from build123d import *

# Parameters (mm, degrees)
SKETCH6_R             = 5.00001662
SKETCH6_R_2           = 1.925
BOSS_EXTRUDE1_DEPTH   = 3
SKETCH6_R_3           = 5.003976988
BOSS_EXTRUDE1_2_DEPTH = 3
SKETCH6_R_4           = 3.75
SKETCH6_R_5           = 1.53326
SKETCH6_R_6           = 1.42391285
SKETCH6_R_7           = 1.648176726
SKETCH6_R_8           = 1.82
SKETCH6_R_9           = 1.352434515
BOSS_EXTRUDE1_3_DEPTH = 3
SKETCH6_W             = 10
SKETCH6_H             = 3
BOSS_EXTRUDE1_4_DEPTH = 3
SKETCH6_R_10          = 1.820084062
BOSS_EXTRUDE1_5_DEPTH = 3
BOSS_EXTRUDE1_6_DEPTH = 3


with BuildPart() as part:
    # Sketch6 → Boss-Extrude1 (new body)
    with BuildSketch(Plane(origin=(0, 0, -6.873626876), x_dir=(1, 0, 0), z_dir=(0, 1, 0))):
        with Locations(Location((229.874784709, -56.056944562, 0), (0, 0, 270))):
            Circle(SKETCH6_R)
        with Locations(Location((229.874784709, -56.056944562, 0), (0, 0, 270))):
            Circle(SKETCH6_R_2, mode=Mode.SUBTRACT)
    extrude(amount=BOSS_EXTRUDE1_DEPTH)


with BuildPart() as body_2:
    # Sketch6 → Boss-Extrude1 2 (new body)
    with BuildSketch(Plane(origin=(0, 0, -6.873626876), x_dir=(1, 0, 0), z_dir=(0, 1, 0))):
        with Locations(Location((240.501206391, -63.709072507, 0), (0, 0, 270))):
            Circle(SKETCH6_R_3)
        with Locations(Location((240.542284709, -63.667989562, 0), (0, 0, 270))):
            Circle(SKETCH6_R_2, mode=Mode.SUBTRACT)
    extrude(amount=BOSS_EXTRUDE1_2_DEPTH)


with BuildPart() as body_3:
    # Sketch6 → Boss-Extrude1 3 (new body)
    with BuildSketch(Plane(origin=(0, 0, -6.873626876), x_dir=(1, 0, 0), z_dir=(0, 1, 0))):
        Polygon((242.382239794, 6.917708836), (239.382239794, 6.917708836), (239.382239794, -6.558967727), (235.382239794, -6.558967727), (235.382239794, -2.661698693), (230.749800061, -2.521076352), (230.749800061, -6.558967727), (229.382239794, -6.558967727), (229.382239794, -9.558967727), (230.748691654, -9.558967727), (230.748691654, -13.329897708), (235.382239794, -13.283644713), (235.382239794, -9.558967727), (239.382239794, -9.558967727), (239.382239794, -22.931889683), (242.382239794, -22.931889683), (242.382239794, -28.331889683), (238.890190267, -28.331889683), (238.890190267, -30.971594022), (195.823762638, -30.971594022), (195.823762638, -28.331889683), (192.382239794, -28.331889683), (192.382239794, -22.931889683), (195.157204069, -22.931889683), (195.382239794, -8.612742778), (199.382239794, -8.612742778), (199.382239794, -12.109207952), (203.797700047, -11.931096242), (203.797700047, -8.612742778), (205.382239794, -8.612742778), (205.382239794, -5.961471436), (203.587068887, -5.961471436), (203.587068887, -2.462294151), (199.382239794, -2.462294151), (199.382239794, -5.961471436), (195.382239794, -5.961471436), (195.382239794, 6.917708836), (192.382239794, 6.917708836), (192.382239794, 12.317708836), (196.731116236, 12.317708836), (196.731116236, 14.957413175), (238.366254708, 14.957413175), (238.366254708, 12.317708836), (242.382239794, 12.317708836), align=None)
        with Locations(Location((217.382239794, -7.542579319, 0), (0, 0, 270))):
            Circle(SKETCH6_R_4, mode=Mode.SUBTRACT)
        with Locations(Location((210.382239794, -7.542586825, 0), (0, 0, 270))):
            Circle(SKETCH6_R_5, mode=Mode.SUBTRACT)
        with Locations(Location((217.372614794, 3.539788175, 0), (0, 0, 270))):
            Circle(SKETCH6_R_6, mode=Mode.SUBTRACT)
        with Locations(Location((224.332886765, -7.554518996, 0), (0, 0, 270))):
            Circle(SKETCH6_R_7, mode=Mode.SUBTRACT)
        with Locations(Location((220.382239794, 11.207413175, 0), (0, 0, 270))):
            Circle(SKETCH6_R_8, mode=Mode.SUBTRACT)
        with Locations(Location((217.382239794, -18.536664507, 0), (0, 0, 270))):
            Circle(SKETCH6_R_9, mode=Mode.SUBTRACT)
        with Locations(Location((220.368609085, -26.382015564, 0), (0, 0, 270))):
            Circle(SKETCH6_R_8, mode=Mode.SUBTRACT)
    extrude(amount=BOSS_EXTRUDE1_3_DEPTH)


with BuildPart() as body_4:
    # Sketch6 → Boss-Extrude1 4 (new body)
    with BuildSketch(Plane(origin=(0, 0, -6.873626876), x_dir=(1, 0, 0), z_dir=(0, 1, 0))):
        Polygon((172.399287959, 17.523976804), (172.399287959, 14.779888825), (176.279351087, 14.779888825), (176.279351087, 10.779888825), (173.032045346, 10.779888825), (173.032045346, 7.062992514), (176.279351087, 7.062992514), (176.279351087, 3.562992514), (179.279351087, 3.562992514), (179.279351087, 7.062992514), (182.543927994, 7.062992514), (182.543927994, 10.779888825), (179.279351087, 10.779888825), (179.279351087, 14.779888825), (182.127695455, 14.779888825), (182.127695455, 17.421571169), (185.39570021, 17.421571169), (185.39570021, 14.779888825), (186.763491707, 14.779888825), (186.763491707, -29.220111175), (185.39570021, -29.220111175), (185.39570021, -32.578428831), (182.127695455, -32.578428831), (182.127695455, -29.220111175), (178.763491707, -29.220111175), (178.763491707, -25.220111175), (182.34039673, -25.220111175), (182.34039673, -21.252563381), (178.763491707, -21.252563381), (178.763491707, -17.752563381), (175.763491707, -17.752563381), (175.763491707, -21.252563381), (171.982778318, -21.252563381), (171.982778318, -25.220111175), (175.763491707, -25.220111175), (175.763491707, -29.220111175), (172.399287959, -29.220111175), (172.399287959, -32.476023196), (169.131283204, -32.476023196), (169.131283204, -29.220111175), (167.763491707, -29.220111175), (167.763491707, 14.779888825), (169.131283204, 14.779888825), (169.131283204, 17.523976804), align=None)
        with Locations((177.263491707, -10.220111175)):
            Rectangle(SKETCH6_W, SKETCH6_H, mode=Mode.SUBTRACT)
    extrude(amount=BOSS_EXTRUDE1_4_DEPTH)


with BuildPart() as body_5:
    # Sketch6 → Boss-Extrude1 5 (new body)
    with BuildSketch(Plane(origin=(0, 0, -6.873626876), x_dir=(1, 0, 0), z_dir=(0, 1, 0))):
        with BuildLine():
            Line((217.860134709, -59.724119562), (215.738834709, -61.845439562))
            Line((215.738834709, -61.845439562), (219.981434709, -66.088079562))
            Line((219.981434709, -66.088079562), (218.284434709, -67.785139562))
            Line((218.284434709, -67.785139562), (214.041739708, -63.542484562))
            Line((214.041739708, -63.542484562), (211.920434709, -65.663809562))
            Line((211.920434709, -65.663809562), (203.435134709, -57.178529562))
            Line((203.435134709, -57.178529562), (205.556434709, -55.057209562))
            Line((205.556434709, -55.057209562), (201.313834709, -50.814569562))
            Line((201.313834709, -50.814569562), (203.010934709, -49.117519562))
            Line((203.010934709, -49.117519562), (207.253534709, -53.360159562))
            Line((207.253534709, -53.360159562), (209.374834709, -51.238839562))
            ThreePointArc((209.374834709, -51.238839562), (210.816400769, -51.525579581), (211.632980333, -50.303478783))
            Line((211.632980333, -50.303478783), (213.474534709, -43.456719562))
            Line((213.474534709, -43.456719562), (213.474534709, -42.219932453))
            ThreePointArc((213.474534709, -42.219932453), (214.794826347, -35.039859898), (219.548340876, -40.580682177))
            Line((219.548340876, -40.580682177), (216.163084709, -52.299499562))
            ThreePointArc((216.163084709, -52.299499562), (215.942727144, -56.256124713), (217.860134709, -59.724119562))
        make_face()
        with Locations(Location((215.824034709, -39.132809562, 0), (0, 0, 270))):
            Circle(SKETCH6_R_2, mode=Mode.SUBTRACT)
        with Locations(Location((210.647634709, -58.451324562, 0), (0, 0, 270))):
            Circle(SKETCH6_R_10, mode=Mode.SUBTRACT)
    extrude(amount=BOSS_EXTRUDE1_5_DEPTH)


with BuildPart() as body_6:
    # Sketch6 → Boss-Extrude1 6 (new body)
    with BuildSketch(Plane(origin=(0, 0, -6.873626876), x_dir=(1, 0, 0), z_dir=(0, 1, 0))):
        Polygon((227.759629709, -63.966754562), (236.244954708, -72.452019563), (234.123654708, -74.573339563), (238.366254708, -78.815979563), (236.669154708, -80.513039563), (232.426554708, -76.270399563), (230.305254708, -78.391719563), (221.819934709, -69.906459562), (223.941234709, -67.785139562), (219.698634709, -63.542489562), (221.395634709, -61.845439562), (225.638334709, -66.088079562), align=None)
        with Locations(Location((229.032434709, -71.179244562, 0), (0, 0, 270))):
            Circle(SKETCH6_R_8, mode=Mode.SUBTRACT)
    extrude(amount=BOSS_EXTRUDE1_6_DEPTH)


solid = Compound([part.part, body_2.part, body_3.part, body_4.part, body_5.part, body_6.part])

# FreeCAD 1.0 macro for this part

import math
import FreeCAD as App
import Part
import Sketcher

V = App.Vector
Q = App.Units.Quantity


def add_polygon(sketch, points):
    """Adds a closed chain of lines whose ends are joined by coincident constraints."""
    first, n = sketch.GeometryCount, len(points)
    for a, b in zip(points, points[1:] + points[:1]):
        sketch.addGeometry(Part.LineSegment(App.Vector(*a, 0), App.Vector(*b, 0)), False)
    for i in range(n):
        sketch.addConstraint(Sketcher.Constraint("Coincident", first + i, 2, first + (i + 1) % n, 1))

doc = App.newDocument("Part")
body = doc.addObject("PartDesign::Body", "Body")

# Sketch on XZ plane
sketch1 = body.newObject("Sketcher::SketchObject", "Sketch")
sketch1.AttachmentSupport = (doc.getObject("XZ_Plane"), [""])
sketch1.MapMode = "FlatFace"
sketch1.addGeometry([
    Part.Circle(V(229.9, 49.2, 0), V(0, 0, 1), 5),
    Part.Circle(V(229.9, 49.2, 0), V(0, 0, 1), 1.9),
], False)
sketch1.addConstraint([
    Sketcher.Constraint("Coincident", 1, 3, 0, 3),
    Sketcher.Constraint("Diameter", 1, Q("3.85 mm")),
    Sketcher.Constraint("Diameter", 0, Q("10.000033 mm")),
    Sketcher.Constraint("DistanceX", -1, 1, 0, 3, Q("229.874785 mm")),
    Sketcher.Constraint("DistanceY", -1, 1, 0, 3, Q("49.183318 mm")),
])
pad1 = body.newObject("PartDesign::Pad", "Pad")
pad1.Profile = sketch1
pad1.Length = 3
pad1.Reversed = True
body2 = doc.addObject("PartDesign::Body", "Body001")

# Sketch on XZ plane
sketch2 = body2.newObject("Sketcher::SketchObject", "Sketch001")
sketch2.AttachmentSupport = (doc.getObject("XZ_Plane001"), [""])
sketch2.MapMode = "FlatFace"
sketch2.addGeometry([
    Part.Circle(V(240.5, 56.8, 0), V(0, 0, 1), 5),
    Part.Circle(V(240.5, 56.8, 0), V(0, 0, 1), 1.9),
], False)
sketch2.addConstraint([
    Sketcher.Constraint("Diameter", 1, Q("3.85 mm")),
    Sketcher.Constraint("Diameter", 0, Q("10.007954 mm")),
    Sketcher.Constraint("DistanceX", 0, 3, 1, 3, Q("0.041078 mm")),
    Sketcher.Constraint("DistanceX", -1, 1, 0, 3, Q("240.501206 mm")),
    Sketcher.Constraint("DistanceY", -1, 1, 0, 3, Q("56.835446 mm")),
    Sketcher.Constraint("DistanceY", -1, 1, 1, 3, Q("56.794363 mm")),
])
pad2 = body2.newObject("PartDesign::Pad", "Pad001")
pad2.Profile = sketch2
pad2.Length = 3
pad2.Reversed = True
body3 = doc.addObject("PartDesign::Body", "Body002")

# Sketch on XZ plane
sketch3 = body3.newObject("Sketcher::SketchObject", "Sketch002")
sketch3.AttachmentSupport = (doc.getObject("XZ_Plane002"), [""])
sketch3.MapMode = "FlatFace"
add_polygon(sketch3, [(239.4, -13.8), (242.4, -13.8), (242.4, -19.2), (238.4, -19.2), (238.4, -21.8), (196.7, -21.8), (196.7, -19.2), (192.4, -19.2), (192.4, -13.8), (195.4, -13.8), (195.4, -0.9), (199.4, -0.9), (199.4, -4.4), (203.6, -4.4), (203.6, -0.9), (205.4, -0.9), (205.4, 1.7), (203.8, 1.7), (203.8, 5.1), (199.4, 5.2), (199.4, 1.7), (195.4, 1.7), (195.2, 16.1), (192.4, 16.1), (192.4, 21.5), (195.8, 21.5), (195.8, 24.1), (238.9, 24.1), (238.9, 21.5), (242.4, 21.5), (242.4, 16.1), (239.4, 16.1), (239.4, 2.7), (235.4, 2.7), (235.4, 6.4), (230.7, 6.5), (230.7, 2.7), (229.4, 2.7), (229.4, -0.3), (230.7, -0.3), (230.7, -4.4), (235.4, -4.2), (235.4, -0.3), (239.4, -0.3)])  # lines 0-43
sketch3.addGeometry(Part.Circle(V(220.4, 19.5, 0), V(0, 0, 1), 1.8), False)  # 44
sketch3.addGeometry(Part.Circle(V(217.4, 11.7, 0), V(0, 0, 1), 1.4), False)  # 45
sketch3.addGeometry(Part.Circle(V(224.3, 0.7, 0), V(0, 0, 1), 1.6), False)  # 46
sketch3.addGeometry(Part.Circle(V(220.4, -18.1, 0), V(0, 0, 1), 1.8), False)  # 47
sketch3.addGeometry(Part.Circle(V(217.4, 0.7, 0), V(0, 0, 1), 3.8), False)  # 48
sketch3.addGeometry(Part.Circle(V(210.4, 0.7, 0), V(0, 0, 1), 1.5), False)  # 49
sketch3.addGeometry(Part.Circle(V(217.4, -10.4, 0), V(0, 0, 1), 1.4), False)  # 50
sketch3.addConstraint([
    Sketcher.Constraint("Horizontal", 0),
    Sketcher.Constraint("Vertical", 1),
    Sketcher.Constraint("Horizontal", 2),
    Sketcher.Constraint("Vertical", 3),
    Sketcher.Constraint("Horizontal", 4),
    Sketcher.Constraint("Vertical", 5),
    Sketcher.Constraint("Horizontal", 6),
    Sketcher.Constraint("Vertical", 7),
    Sketcher.Constraint("Horizontal", 8),
    Sketcher.Constraint("Vertical", 9),
    Sketcher.Constraint("Horizontal", 10),
    Sketcher.Constraint("Vertical", 11),
    Sketcher.Constraint("Horizontal", 12),
    Sketcher.Constraint("Vertical", 13),
    Sketcher.Constraint("Horizontal", 14),
    Sketcher.Constraint("Vertical", 15),
    Sketcher.Constraint("Horizontal", 16),
    Sketcher.Constraint("Vertical", 17),
    Sketcher.Constraint("Vertical", 19),
    Sketcher.Constraint("Horizontal", 20),
    Sketcher.Constraint("Horizontal", 22),
    Sketcher.Constraint("Vertical", 23),
    Sketcher.Constraint("Horizontal", 24),
    Sketcher.Constraint("Vertical", 25),
    Sketcher.Constraint("Horizontal", 26),
    Sketcher.Constraint("Vertical", 27),
    Sketcher.Constraint("Horizontal", 28),
    Sketcher.Constraint("Vertical", 29),
    Sketcher.Constraint("Horizontal", 30),
    Sketcher.Constraint("Vertical", 31),
    Sketcher.Constraint("Horizontal", 32),
    Sketcher.Constraint("Vertical", 33),
    Sketcher.Constraint("Vertical", 35),
    Sketcher.Constraint("Horizontal", 36),
    Sketcher.Constraint("Vertical", 37),
    Sketcher.Constraint("Horizontal", 38),
    Sketcher.Constraint("Vertical", 39),
    Sketcher.Constraint("Vertical", 41),
    Sketcher.Constraint("Horizontal", 42),
    Sketcher.Constraint("Vertical", 43),
    Sketcher.Constraint("Equal", 44, 47),
    Sketcher.Constraint("Horizontal", 2, 2, 5, 2),
    Sketcher.Constraint("Horizontal", 0, 2, 7, 2),
    Sketcher.Constraint("Horizontal", 10, 2, 13, 2),
    Sketcher.Constraint("Horizontal", 16, 2, 19, 2),
    Sketcher.Constraint("Horizontal", 24, 2, 27, 2),
    Sketcher.Constraint("Horizontal", 22, 2, 29, 2),
    Sketcher.Constraint("Horizontal", 32, 2, 35, 2),
    Sketcher.Constraint("Horizontal", 38, 2, 41, 2),
    Sketcher.Constraint("Vertical", 45, 3, 48, 3),
    Sketcher.Constraint("Vertical", 11, 2, 18, 2),
    Sketcher.Constraint("Vertical", 9, 2, 20, 2),
    Sketcher.Constraint("Vertical", 7, 2, 22, 2),
    Sketcher.Constraint("Vertical", 1, 2, 28, 2),
    Sketcher.Constraint("Vertical", 33, 2, 40, 2),
    Sketcher.Constraint("Vertical", 31, 2, 42, 2),
    Sketcher.Constraint("Equal", 0, 8),
    Sketcher.Constraint("Equal", 20, 32),
    Sketcher.Constraint("Equal", 7, 23),
    Sketcher.Constraint("Equal", 5, 25),
    Sketcher.Constraint("Equal", 30, 37),
    Sketcher.Constraint("Diameter", 48, Q("7.5 mm")),
    Sketcher.Constraint("Diameter", 44, Q("3.64 mm")),
    Sketcher.Constraint("DistanceX", 0, 1, 0, 2, Q("3 mm")),
    Sketcher.Constraint("DistanceX", 10, 1, 10, 2, Q("4 mm")),
    Sketcher.Constraint("DistanceY", 1, 2, 1, 1, Q("5.4 mm")),
    Sketcher.Constraint("DistanceX", 45, 3, 47, 3, Q("3 mm")),
    Sketcher.Constraint("DistanceX", 49, 3, 48, 3, Q("7 mm")),
    Sketcher.Constraint("DistanceX", 47, 3, 0, 2, Q("22 mm")),
    Sketcher.Constraint("DistanceX", 6, 2, 49, 3, Q("18 mm")),
    Sketcher.Constraint("DistanceX", 14, 2, 49, 3, Q("5 mm")),
    Sketcher.Constraint("DistanceX", 36, 2, 32, 2, Q("6 mm")),
    Sketcher.Constraint("DistanceY", 4, 2, 49, 3, Q("22.5 mm")),
    Sketcher.Constraint("Diameter", 45, Q("2.704869 mm")),
    Sketcher.Constraint("Diameter", 49, Q("3.06652 mm")),
    Sketcher.Constraint("DistanceY", 47, 3, 49, 3, Q("18.75 mm")),
    Sketcher.Constraint("Diameter", 46, Q("3.296353 mm")),
    Sketcher.Constraint("Diameter", 50, Q("2.847826 mm")),
    Sketcher.Constraint("DistanceX", 4, 2, 4, 1, Q("41.635138 mm")),
    Sketcher.Constraint("DistanceX", 12, 1, 12, 2, Q("4.204829 mm")),
    Sketcher.Constraint("DistanceX", 16, 2, 16, 1, Q("1.58454 mm")),
    Sketcher.Constraint("DistanceX", 28, 1, 28, 2, Q("3.49205 mm")),
    Sketcher.Constraint("DistanceX", 36, 2, 36, 1, Q("1.366452 mm")),
    Sketcher.Constraint("DistanceX", 38, 1, 38, 2, Q("1.36756 mm")),
    Sketcher.Constraint("DistanceY", 9, 1, 9, 2, Q("12.87918 mm")),
    Sketcher.Constraint("DistanceY", 15, 1, 15, 2, Q("2.651271 mm")),
    Sketcher.Constraint("DistanceY", 31, 2, 31, 1, Q("13.372922 mm")),
    Sketcher.Constraint("DistanceY", 35, 2, 35, 1, Q("3.77093 mm")),
    Sketcher.Constraint("DistanceY", 39, 2, 39, 1, Q("4.037891 mm")),
    Sketcher.Constraint("DistanceY", 41, 1, 41, 2, Q("3.897269 mm")),
    Sketcher.Constraint("DistanceX", -1, 1, 16, 2, Q("203.7977 mm")),
    Sketcher.Constraint("DistanceX", 4, 2, 50, 3, Q("20.641499 mm")),
    Sketcher.Constraint("Distance", 18, Q("4.419051 mm")),
    Sketcher.Constraint("Distance", 34, Q("4.633779 mm")),
    Sketcher.Constraint("DistanceX", 2, 2, 2, 1, Q("4.015985 mm")),
    Sketcher.Constraint("DistanceX", 22, 2, 22, 1, Q("2.774964 mm")),
    Sketcher.Constraint("DistanceX", 24, 1, 24, 2, Q("3.441523 mm")),
    Sketcher.Constraint("DistanceY", 3, 2, 3, 1, Q("2.639704 mm")),
    Sketcher.Constraint("DistanceY", 11, 2, 11, 1, Q("3.499177 mm")),
    Sketcher.Constraint("DistanceY", 17, 1, 17, 2, Q("3.318353 mm")),
    Sketcher.Constraint("DistanceY", 43, 2, 43, 1, Q("13.476677 mm")),
    Sketcher.Constraint("DistanceX", -1, 1, 44, 3, Q("220.368609 mm")),
    Sketcher.Constraint("DistanceY", -1, 1, 44, 3, Q("19.508389 mm")),
    Sketcher.Constraint("DistanceY", 47, 3, -1, 1, Q("18.08104 mm")),
    Sketcher.Constraint("DistanceY", 45, 3, 44, 3, Q("7.845351 mm")),
    Sketcher.Constraint("DistanceY", 48, 3, 46, 3, Q("0.01194 mm")),
    Sketcher.Constraint("DistanceX", 50, 3, 46, 3, Q("6.960272 mm")),
    Sketcher.Constraint("DistanceY", 0, 2, 50, 3, Q("3.377921 mm")),
    Sketcher.Constraint("DistanceY", 0, 2, 48, 3, Q("14.460288 mm")),
])
pad3 = body3.newObject("PartDesign::Pad", "Pad002")
pad3.Profile = sketch3
pad3.Length = 3
pad3.Reversed = True
body4 = doc.addObject("PartDesign::Body", "Body003")

# Sketch on XZ plane
sketch4 = body4.newObject("Sketcher::SketchObject", "Sketch003")
sketch4.AttachmentSupport = (doc.getObject("XZ_Plane003"), [""])
sketch4.MapMode = "FlatFace"
add_polygon(sketch4, [(172.4, -21.7), (172.4, -24.4), (169.1, -24.4), (169.1, -21.7), (167.8, -21.7), (167.8, 22.3), (169.1, 22.3), (169.1, 25.6), (172.4, 25.6), (172.4, 22.3), (175.8, 22.3), (175.8, 18.3), (172, 18.3), (172, 14.4), (175.8, 14.4), (175.8, 10.9), (178.8, 10.9), (178.8, 14.4), (182.3, 14.4), (182.3, 18.3), (178.8, 18.3), (178.8, 22.3), (182.1, 22.3), (182.1, 25.7), (185.4, 25.7), (185.4, 22.3), (186.8, 22.3), (186.8, -21.7), (185.4, -21.7), (185.4, -24.3), (182.1, -24.3), (182.1, -21.7), (179.3, -21.7), (179.3, -17.7), (182.5, -17.7), (182.5, -13.9), (179.3, -13.9), (179.3, -10.4), (176.3, -10.4), (176.3, -13.9), (173, -13.9), (173, -17.7), (176.3, -17.7), (176.3, -21.7)])  # lines 0-43
add_polygon(sketch4, [(172.3, 4.8), (172.3, 1.8), (182.3, 1.8), (182.3, 4.8)])  # lines 44-47
sketch4.addConstraint([
    Sketcher.Constraint("Vertical", 0),
    Sketcher.Constraint("Horizontal", 1),
    Sketcher.Constraint("Vertical", 2),
    Sketcher.Constraint("Horizontal", 3),
    Sketcher.Constraint("Vertical", 4),
    Sketcher.Constraint("Horizontal", 5),
    Sketcher.Constraint("Vertical", 6),
    Sketcher.Constraint("Horizontal", 7),
    Sketcher.Constraint("Vertical", 8),
    Sketcher.Constraint("Horizontal", 9),
    Sketcher.Constraint("Vertical", 10),
    Sketcher.Constraint("Horizontal", 11),
    Sketcher.Constraint("Vertical", 12),
    Sketcher.Constraint("Horizontal", 13),
    Sketcher.Constraint("Vertical", 14),
    Sketcher.Constraint("Horizontal", 15),
    Sketcher.Constraint("Vertical", 16),
    Sketcher.Constraint("Horizontal", 17),
    Sketcher.Constraint("Vertical", 18),
    Sketcher.Constraint("Horizontal", 19),
    Sketcher.Constraint("Vertical", 20),
    Sketcher.Constraint("Horizontal", 21),
    Sketcher.Constraint("Vertical", 22),
    Sketcher.Constraint("Horizontal", 23),
    Sketcher.Constraint("Vertical", 24),
    Sketcher.Constraint("Horizontal", 25),
    Sketcher.Constraint("Vertical", 26),
    Sketcher.Constraint("Horizontal", 27),
    Sketcher.Constraint("Vertical", 28),
    Sketcher.Constraint("Horizontal", 29),
    Sketcher.Constraint("Vertical", 30),
    Sketcher.Constraint("Horizontal", 31),
    Sketcher.Constraint("Vertical", 32),
    Sketcher.Constraint("Horizontal", 33),
    Sketcher.Constraint("Vertical", 34),
    Sketcher.Constraint("Horizontal", 35),
    Sketcher.Constraint("Vertical", 36),
    Sketcher.Constraint("Horizontal", 37),
    Sketcher.Constraint("Vertical", 38),
    Sketcher.Constraint("Horizontal", 39),
    Sketcher.Constraint("Vertical", 40),
    Sketcher.Constraint("Horizontal", 41),
    Sketcher.Constraint("Vertical", 42),
    Sketcher.Constraint("Horizontal", 43),
    Sketcher.Constraint("Vertical", 44),
    Sketcher.Constraint("Horizontal", 45),
    Sketcher.Constraint("Vertical", 46),
    Sketcher.Constraint("Horizontal", 47),
    Sketcher.Constraint("Horizontal", 5, 2, 8, 2),
    Sketcher.Constraint("Horizontal", 13, 2, 16, 2),
    Sketcher.Constraint("Horizontal", 11, 2, 18, 2),
    Sketcher.Constraint("Horizontal", 9, 2, 20, 2),
    Sketcher.Constraint("Horizontal", 21, 2, 24, 2),
    Sketcher.Constraint("Horizontal", 3, 2, 26, 2),
    Sketcher.Constraint("Horizontal", 27, 2, 30, 2),
    Sketcher.Constraint("Horizontal", 35, 2, 38, 2),
    Sketcher.Constraint("Horizontal", 33, 2, 40, 2),
    Sketcher.Constraint("Horizontal", 31, 2, 42, 2),
    Sketcher.Constraint("Vertical", 2, 2, 5, 2),
    Sketcher.Constraint("Vertical", 0, 2, 7, 2),
    Sketcher.Constraint("Vertical", 10, 2, 13, 2),
    Sketcher.Constraint("Vertical", 16, 2, 19, 2),
    Sketcher.Constraint("Vertical", 24, 2, 27, 2),
    Sketcher.Constraint("Vertical", 22, 2, 29, 2),
    Sketcher.Constraint("Vertical", 32, 2, 35, 2),
    Sketcher.Constraint("Vertical", 38, 2, 41, 2),
    Sketcher.Constraint("Equal", 9, 21),
    Sketcher.Constraint("Equal", 7, 23),
    Sketcher.Constraint("Equal", 5, 25),
    Sketcher.Constraint("Equal", 15, 37),
    Sketcher.Constraint("Equal", 20, 32),
    Sketcher.Constraint("Equal", 16, 36),
    Sketcher.Constraint("Equal", 37, 44),
    Sketcher.Constraint("DistanceX", 15, 1, 15, 2, Q("3 mm")),
    Sketcher.Constraint("DistanceX", 45, 1, 45, 2, Q("10 mm")),
    Sketcher.Constraint("DistanceY", 4, 1, 4, 2, Q("44 mm")),
    Sketcher.Constraint("DistanceY", 10, 2, 10, 1, Q("4 mm")),
    Sketcher.Constraint("DistanceY", 14, 2, 14, 1, Q("3.5 mm")),
    Sketcher.Constraint("DistanceY", 1, 2, 6, 2, Q("50 mm")),
    Sketcher.Constraint("DistanceX", 4, 2, 9, 2, Q("8 mm")),
    Sketcher.Constraint("DistanceX", 44, 2, 14, 2, Q("3.5 mm")),
    Sketcher.Constraint("DistanceX", 3, 2, 3, 1, Q("1.367791 mm")),
    Sketcher.Constraint("DistanceY", -1, 1, 22, 2, Q("25.704802 mm")),
    Sketcher.Constraint("DistanceX", -1, 1, 23, 2, Q("185.3957 mm")),
    Sketcher.Constraint("DistanceY", 28, 2, -1, 1, Q("24.295198 mm")),
    Sketcher.Constraint("DistanceX", 21, 2, 18, 2, Q("0.212701 mm")),
    Sketcher.Constraint("DistanceX", 1, 2, 1, 1, Q("3.268005 mm")),
    Sketcher.Constraint("DistanceX", 11, 2, 11, 1, Q("3.780713 mm")),
    Sketcher.Constraint("DistanceX", 31, 2, 31, 1, Q("2.848344 mm")),
    Sketcher.Constraint("DistanceX", 33, 1, 33, 2, Q("3.264577 mm")),
    Sketcher.Constraint("DistanceX", 39, 2, 39, 1, Q("3.247306 mm")),
    Sketcher.Constraint("DistanceY", 0, 2, 0, 1, Q("2.744088 mm")),
    Sketcher.Constraint("DistanceY", 12, 2, 12, 1, Q("3.967548 mm")),
    Sketcher.Constraint("DistanceY", 22, 1, 22, 2, Q("3.358318 mm")),
    Sketcher.Constraint("DistanceY", 34, 1, 34, 2, Q("3.716896 mm")),
    Sketcher.Constraint("DistanceY", -1, 1, 44, 2, Q("1.846484 mm")),
])
pad4 = body4.newObject("PartDesign::Pad", "Pad003")
pad4.Profile = sketch4
pad4.Length = 3
pad4.Reversed = True
body5 = doc.addObject("PartDesign::Body", "Body004")

# Sketch on XZ plane
sketch5 = body5.newObject("Sketcher::SketchObject", "Sketch004")
sketch5.AttachmentSupport = (doc.getObject("XZ_Plane004"), [""])
sketch5.MapMode = "FlatFace"
sketch5.addGeometry([
    Part.LineSegment(V(215.7, 55, 0), V(217.9, 52.9, 0)),  # 0
    Part.ArcOfCircle(Part.Circle(V(222.9, 47.8, 0), V(0, 0, 1), 7.2), math.radians(135), math.radians(199)),  # 1
    Part.LineSegment(V(216.2, 45.4, 0), V(219.5, 33.7, 0)),  # 2
    Part.ArcOfCircle(Part.Circle(V(215.8, 32.1, 0), V(0, 0, 1), 4), math.radians(126), math.radians(384)),  # 3
    Part.LineSegment(V(213.5, 35.3, 0), V(213.5, 36.6, 0)),  # 4
    Part.LineSegment(V(213.5, 36.6, 0), V(211.6, 43.4, 0)),  # 5
    Part.ArcOfCircle(Part.Circle(V(210.3, 43.4, 0), V(0, 0, 1), 1.3), math.radians(0), math.radians(135)),  # 6
    Part.LineSegment(V(209.4, 44.4, 0), V(207.3, 46.5, 0)),  # 7
    Part.LineSegment(V(207.3, 46.5, 0), V(203, 42.2, 0)),  # 8
    Part.LineSegment(V(203, 42.2, 0), V(201.3, 43.9, 0)),  # 9
    Part.LineSegment(V(201.3, 43.9, 0), V(205.6, 48.2, 0)),  # 10
    Part.LineSegment(V(205.6, 48.2, 0), V(203.4, 50.3, 0)),  # 11
    Part.LineSegment(V(203.4, 50.3, 0), V(211.9, 58.8, 0)),  # 12
    Part.LineSegment(V(211.9, 58.8, 0), V(214, 56.7, 0)),  # 13
    Part.LineSegment(V(214, 56.7, 0), V(218.3, 60.9, 0)),  # 14
    Part.LineSegment(V(218.3, 60.9, 0), V(220, 59.2, 0)),  # 15
    Part.LineSegment(V(220, 59.2, 0), V(215.7, 55, 0)),  # 16
    Part.Circle(V(210.6, 51.6, 0), V(0, 0, 1), 1.8),  # 17
    Part.Circle(V(215.8, 32.3, 0), V(0, 0, 1), 1.9),  # 18
], False)
sketch5.addConstraint([
    Sketcher.Constraint("Coincident", 0, 2, 1, 1),
    Sketcher.Constraint("Coincident", 1, 2, 2, 1),
    Sketcher.Constraint("Coincident", 2, 2, 3, 2),
    Sketcher.Constraint("Coincident", 3, 1, 4, 1),
    Sketcher.Constraint("Coincident", 4, 2, 5, 1),
    Sketcher.Constraint("Coincident", 5, 2, 6, 1),
    Sketcher.Constraint("Coincident", 6, 2, 7, 1),
    Sketcher.Constraint("Coincident", 7, 2, 8, 1),
    Sketcher.Constraint("Coincident", 8, 2, 9, 1),
    Sketcher.Constraint("Coincident", 9, 2, 10, 1),
    Sketcher.Constraint("Coincident", 10, 2, 11, 1),
    Sketcher.Constraint("Coincident", 11, 2, 12, 1),
    Sketcher.Constraint("Coincident", 12, 2, 13, 1),
    Sketcher.Constraint("Coincident", 13, 2, 14, 1),
    Sketcher.Constraint("Coincident", 14, 2, 15, 1),
    Sketcher.Constraint("Coincident", 15, 2, 16, 1),
    Sketcher.Constraint("Coincident", 16, 2, 0, 1),
    Sketcher.Constraint("Vertical", 4),
    Sketcher.Constraint("Parallel", 0, 7),
    Sketcher.Constraint("Parallel", 8, 10),
    Sketcher.Constraint("Parallel", 7, 11),
    Sketcher.Constraint("Parallel", 11, 13),
    Sketcher.Constraint("Perpendicular", 13, 14),
    Sketcher.Constraint("Parallel", 10, 16),
    Sketcher.Constraint("Horizontal", 6, 3, 5, 2),
    Sketcher.Constraint("Equal", 0, 7),
    Sketcher.Constraint("Equal", 8, 10),
    Sketcher.Constraint("Equal", 7, 11),
    Sketcher.Constraint("Equal", 10, 16),
    Sketcher.Constraint("Diameter", 18, Q("3.85 mm")),
    Sketcher.Constraint("Diameter", 17, Q("3.640168 mm")),
    Sketcher.Constraint("Radius", 1, Q("7.161046 mm")),
    Sketcher.Constraint("Radius", 3, Q("4.044963 mm")),
    Sketcher.Constraint("Radius", 6, Q("1.322794 mm")),
    Sketcher.Constraint("DistanceX", 9, 2, 6, 2, Q("8.061 mm")),
    Sketcher.Constraint("DistanceX", 10, 2, 12, 2, Q("6.364 mm")),
    Sketcher.Constraint("DistanceX", 12, 2, 14, 2, Q("6.364 mm")),
    Sketcher.Constraint("DistanceX", 14, 2, 15, 2, Q("1.697 mm")),
    Sketcher.Constraint("DistanceX", 17, 3, 1, 3, Q("12.2761 mm")),
    Sketcher.Constraint("DistanceX", 18, 3, 1, 3, Q("7.0997 mm")),
    Sketcher.Constraint("DistanceX", 0, 2, 1, 3, Q("5.0636 mm")),
    Sketcher.Constraint("DistanceX", 6, 3, 1, 2, Q("5.852898 mm")),
    Sketcher.Constraint("DistanceX", 3, 1, 18, 3, Q("2.3495 mm")),
    Sketcher.Constraint("DistanceX", 6, 2, 17, 3, Q("1.2728 mm")),
    Sketcher.Constraint("DistanceX", 8, 2, 7, 2, Q("4.2426 mm")),
    Sketcher.Constraint("DistanceY", 4, 2, 8, 2, Q("5.6608 mm")),
    Sketcher.Constraint("DistanceY", 10, 2, 12, 2, Q("10.6066 mm")),
    Sketcher.Constraint("Distance", 8, Q("5.999971 mm")),
    Sketcher.Constraint("Distance", 14, Q("6.000049 mm")),
    Sketcher.Constraint("DistanceY", 4, 1, 4, 2, Q("1.236787 mm")),
    Sketcher.Constraint("DistanceY", -1, 1, 6, 3, Q("43.429852 mm")),
    Sketcher.Constraint("DistanceX", -1, 1, 2, 2, Q("219.548341 mm")),
    Sketcher.Constraint("DistanceX", -1, 1, 5, 2, Q("211.63298 mm")),
    Sketcher.Constraint("DistanceX", -1, 1, 13, 2, Q("214.04174 mm")),
    Sketcher.Constraint("DistanceX", 3, 3, 1, 3, Q("7.074931 mm")),
    Sketcher.Constraint("DistanceX", 6, 3, 1, 3, Q("12.613548 mm")),
    Sketcher.Constraint("DistanceY", 3, 3, 17, 3, Q("19.506231 mm")),
    Sketcher.Constraint("DistanceY", 18, 3, 6, 3, Q("11.170669 mm")),
    Sketcher.Constraint("DistanceY", 18, 3, 1, 3, Q("15.527662 mm")),
    Sketcher.Constraint("DistanceY", 8, 2, 9, 2, Q("1.69705 mm")),
])
pad5 = body5.newObject("PartDesign::Pad", "Pad004")
pad5.Profile = sketch5
pad5.Length = 3
pad5.Reversed = True
body6 = doc.addObject("PartDesign::Body", "Body005")

# Sketch on XZ plane
sketch6 = body6.newObject("Sketcher::SketchObject", "Sketch005")
sketch6.AttachmentSupport = (doc.getObject("XZ_Plane005"), [""])
sketch6.MapMode = "FlatFace"
add_polygon(sketch6, [(236.2, 65.6), (227.8, 57.1), (225.6, 59.2), (221.4, 55), (219.7, 56.7), (223.9, 60.9), (221.8, 63), (230.3, 71.5), (232.4, 69.4), (236.7, 73.6), (238.4, 71.9), (234.1, 67.7)])  # lines 0-11
sketch6.addGeometry(Part.Circle(V(229, 64.3, 0), V(0, 0, 1), 1.8), False)  # 12
sketch6.addConstraint([
    Sketcher.Constraint("Perpendicular", 1, 2),
    Sketcher.Constraint("Perpendicular", 0, 5),
    Sketcher.Constraint("Perpendicular", 5, 6),
    Sketcher.Constraint("Perpendicular", 6, 7),
    Sketcher.Constraint("Parallel", 4, 8),
    Sketcher.Constraint("Parallel", 8, 10),
    Sketcher.Constraint("Parallel", 7, 11),
    Sketcher.Constraint("Equal", 1, 5),
    Sketcher.Constraint("Equal", 5, 7),
    Sketcher.Constraint("Equal", 8, 10),
    Sketcher.Constraint("Equal", 7, 11),
    Sketcher.Constraint("Diameter", 12, Q("3.64 mm")),
    Sketcher.Constraint("DistanceX", 3, 2, 2, 2, Q("1.697 mm")),
    Sketcher.Constraint("DistanceX", 6, 2, 9, 2, Q("8.061 mm")),
    Sketcher.Constraint("DistanceX", 1, 2, 12, 3, Q("3.3941 mm")),
    Sketcher.Constraint("DistanceX", 2, 2, 1, 2, Q("4.2427 mm")),
    Sketcher.Constraint("DistanceX", 4, 2, 1, 2, Q("1.6971 mm")),
    Sketcher.Constraint("DistanceY", 2, 2, 4, 2, Q("5.9397 mm")),
    Sketcher.Constraint("DistanceX", 5, 2, 4, 2, Q("2.1213 mm")),
    Sketcher.Constraint("DistanceX", 7, 2, 8, 2, Q("4.2426 mm")),
    Sketcher.Constraint("DistanceY", 4, 2, 8, 2, Q("12.7279 mm")),
    Sketcher.Constraint("DistanceY", 10, 2, 8, 2, Q("5.9397 mm")),
    Sketcher.Constraint("Distance", 0, Q("12.000019 mm")),
    Sketcher.Constraint("Distance", 2, Q("6.000041 mm")),
    Sketcher.Constraint("DistanceX", -1, 1, 0, 2, Q("227.75963 mm")),
    Sketcher.Constraint("DistanceY", 0, 2, 12, 3, Q("7.21249 mm")),
    Sketcher.Constraint("DistanceY", -1, 1, 12, 3, Q("64.305618 mm")),
])
pad6 = body6.newObject("PartDesign::Pad", "Pad005")
pad6.Profile = sketch6
pad6.Length = 3
pad6.Reversed = True

doc.recompute()
